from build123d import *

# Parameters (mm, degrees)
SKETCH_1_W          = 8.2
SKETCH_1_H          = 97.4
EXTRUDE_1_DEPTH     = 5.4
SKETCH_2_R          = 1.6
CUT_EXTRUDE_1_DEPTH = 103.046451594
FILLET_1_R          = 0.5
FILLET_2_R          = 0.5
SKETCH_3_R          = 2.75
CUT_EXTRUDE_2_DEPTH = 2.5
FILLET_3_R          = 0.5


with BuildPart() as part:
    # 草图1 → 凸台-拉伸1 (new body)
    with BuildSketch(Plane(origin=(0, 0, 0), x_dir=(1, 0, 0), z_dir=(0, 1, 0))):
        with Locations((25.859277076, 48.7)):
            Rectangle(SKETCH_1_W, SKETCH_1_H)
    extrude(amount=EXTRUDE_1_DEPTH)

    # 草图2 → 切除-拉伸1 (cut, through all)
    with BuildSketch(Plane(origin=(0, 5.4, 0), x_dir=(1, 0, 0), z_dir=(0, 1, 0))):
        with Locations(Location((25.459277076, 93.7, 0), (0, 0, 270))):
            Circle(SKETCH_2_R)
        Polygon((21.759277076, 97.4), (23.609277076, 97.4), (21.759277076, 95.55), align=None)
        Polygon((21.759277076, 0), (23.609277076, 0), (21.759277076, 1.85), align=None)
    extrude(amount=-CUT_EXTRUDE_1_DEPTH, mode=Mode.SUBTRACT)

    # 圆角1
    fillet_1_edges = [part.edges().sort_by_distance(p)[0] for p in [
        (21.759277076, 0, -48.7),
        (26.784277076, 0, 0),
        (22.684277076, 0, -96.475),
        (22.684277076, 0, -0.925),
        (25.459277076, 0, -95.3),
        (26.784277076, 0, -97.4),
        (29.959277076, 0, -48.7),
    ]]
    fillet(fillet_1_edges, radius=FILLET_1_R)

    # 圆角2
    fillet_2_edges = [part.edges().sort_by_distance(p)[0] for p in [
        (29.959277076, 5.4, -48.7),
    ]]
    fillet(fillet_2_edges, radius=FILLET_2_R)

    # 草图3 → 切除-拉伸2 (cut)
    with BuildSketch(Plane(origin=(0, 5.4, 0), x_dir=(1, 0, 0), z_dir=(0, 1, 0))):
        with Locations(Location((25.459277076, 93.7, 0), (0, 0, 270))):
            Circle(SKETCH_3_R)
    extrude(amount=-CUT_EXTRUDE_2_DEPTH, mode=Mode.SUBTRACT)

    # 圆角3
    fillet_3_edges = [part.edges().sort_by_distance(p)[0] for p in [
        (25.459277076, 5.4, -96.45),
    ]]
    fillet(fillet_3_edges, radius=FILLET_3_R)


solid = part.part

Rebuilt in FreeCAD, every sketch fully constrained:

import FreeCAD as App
import Part
import Sketcher

V = App.Vector
Q = App.Units.Quantity


def edges_at(feature, points):
    """Names of the edges that pass closest to the given points."""
    edges = feature.Shape.Edges
    near = lambda p: min(range(len(edges)), key=lambda i: edges[i].distToShape(Part.Vertex(*p))[0])
    return sorted({f"Edge{near(p) + 1}" for p in points})

doc = App.newDocument("Part")
params = doc.addObject("Spreadsheet::Sheet", "Params")
for row, (alias, value) in enumerate([
    ("sketch1_width", "8.2 mm"),
    ("sketch1_height", "97.4 mm"),
    ("pad1_length", "5.4 mm"),
    ("sketch2_diameter", "3.2 mm"),
    ("sketch2_width", "1.85 mm"),
    ("fillet_radius", "0.5 mm"),
    ("fillet2_radius", "0.5 mm"),
    ("sketch3_diameter", "5.5 mm"),
    ("pocket2_length", "2.5 mm"),
    ("fillet3_radius", "0.5 mm"),
], start=1):
    params.set(f"A{row}", alias)
    params.set(f"B{row}", "=" + value)
    params.setAlias(f"B{row}", alias)

body = doc.addObject("PartDesign::Body", "Body")

# Sketch on XZ plane
sketch1 = body.newObject("Sketcher::SketchObject", "Sketch")
sketch1.AttachmentSupport = (doc.getObject("XZ_Plane"), [""])
sketch1.MapMode = "FlatFace"
sketch1.addGeometry(Part.LineSegment(V(21.759277, -97.4, 0), V(21.759277, 0, 0)), False)
sketch1.addGeometry(Part.LineSegment(V(21.759277, 0, 0), V(29.959277, 0, 0)), False)
sketch1.addGeometry(Part.LineSegment(V(29.959277, 0, 0), V(29.959277, -97.4, 0)), False)
sketch1.addGeometry(Part.LineSegment(V(29.959277, -97.4, 0), V(21.759277, -97.4, 0)), False)
sketch1.addConstraint(Sketcher.Constraint("Coincident", 0, 2, 1, 1))
sketch1.addConstraint(Sketcher.Constraint("Coincident", 1, 2, 2, 1))
sketch1.addConstraint(Sketcher.Constraint("Coincident", 2, 2, 3, 1))
sketch1.addConstraint(Sketcher.Constraint("Coincident", 3, 2, 0, 1))
sketch1.addConstraint(Sketcher.Constraint("Vertical", 0))
sketch1.addConstraint(Sketcher.Constraint("Horizontal", 1))
sketch1.addConstraint(Sketcher.Constraint("Vertical", 2))
sketch1.addConstraint(Sketcher.Constraint("Horizontal", 3))
sketch1.addConstraint(Sketcher.Constraint("PointOnObject", 0, 2, -1))
sketch1.addConstraint(Sketcher.Constraint("DistanceX", 1, 1, 1, 2, Q("8.2 mm")))
sketch1.addConstraint(Sketcher.Constraint("DistanceY", 0, 1, 0, 2, Q("97.4 mm")))
sketch1.addConstraint(Sketcher.Constraint("DistanceX", -1, 1, 0, 2, Q("21.759277 mm")))
sketch1.setExpression("Constraints[9]", "Params.sketch1_width")
sketch1.setExpression("Constraints[10]", "Params.sketch1_height")
pad1 = body.newObject("PartDesign::Pad", "Pad")
pad1.Profile = sketch1
pad1.setExpression("Length", "Params.pad1_length")
pad1.Reversed = True

# Sketch on XZ plane
sketch2 = body.newObject("Sketcher::SketchObject", "Sketch001")
sketch2.AttachmentSupport = (doc.getObject("XZ_Plane"), [""])
sketch2.MapMode = "FlatFace"
sketch2.AttachmentOffset = App.Placement(V(0, 0, -5.4), App.Rotation())
sketch2.addGeometry(Part.Circle(V(25.459277, -93.7, 0), V(0, 0, 1), 1.6), False)
sketch2.addGeometry(Part.LineSegment(V(23.609277, -97.4, 0), V(21.759277, -97.4, 0)), False)
sketch2.addGeometry(Part.LineSegment(V(21.759277, -97.4, 0), V(21.759277, -95.55, 0)), False)
sketch2.addGeometry(Part.LineSegment(V(21.759277, -95.55, 0), V(23.609277, -97.4, 0)), False)
sketch2.addGeometry(Part.LineSegment(V(21.759277, 0, 0), V(23.609277, 0, 0)), False)
sketch2.addGeometry(Part.LineSegment(V(23.609277, 0, 0), V(21.759277, -1.85, 0)), False)
sketch2.addGeometry(Part.LineSegment(V(21.759277, -1.85, 0), V(21.759277, 0, 0)), False)
sketch2.addConstraint(Sketcher.Constraint("Coincident", 1, 2, 2, 1))
sketch2.addConstraint(Sketcher.Constraint("Coincident", 2, 2, 3, 1))
sketch2.addConstraint(Sketcher.Constraint("Coincident", 3, 2, 1, 1))
sketch2.addConstraint(Sketcher.Constraint("Coincident", 4, 2, 5, 1))
sketch2.addConstraint(Sketcher.Constraint("Coincident", 5, 2, 6, 1))
sketch2.addConstraint(Sketcher.Constraint("Coincident", 6, 2, 4, 1))
sketch2.addConstraint(Sketcher.Constraint("Horizontal", 1))
sketch2.addConstraint(Sketcher.Constraint("Vertical", 2))
sketch2.addConstraint(Sketcher.Constraint("Horizontal", 4))
sketch2.addConstraint(Sketcher.Constraint("Vertical", 6))
sketch2.addConstraint(Sketcher.Constraint("PointOnObject", 4, 2, -1))
sketch2.addConstraint(Sketcher.Constraint("Perpendicular", 3, 5))
sketch2.addConstraint(Sketcher.Constraint("Vertical", 3, 2, 4, 2))
sketch2.addConstraint(Sketcher.Constraint("Vertical", 2, 2, 5, 2))
sketch2.addConstraint(Sketcher.Constraint("Equal", 4, 2))
sketch2.addConstraint(Sketcher.Constraint("Diameter", 0, Q("3.2 mm")))
sketch2.addConstraint(Sketcher.Constraint("DistanceX", 1, 2, 1, 1, Q("1.85 mm")))
sketch2.addConstraint(Sketcher.Constraint("DistanceY", 0, 3, -1, 1, Q("93.7 mm")))
sketch2.addConstraint(Sketcher.Constraint("DistanceY", 1, 2, -1, 1, Q("97.4 mm")))
sketch2.addConstraint(Sketcher.Constraint("DistanceX", 1, 2, 0, 3, Q("3.7 mm")))
sketch2.addConstraint(Sketcher.Constraint("DistanceX", -1, 1, 0, 3, Q("25.459277 mm")))
sketch2.setExpression("Constraints[15]", "Params.sketch2_diameter")
sketch2.setExpression("Constraints[16]", "Params.sketch2_width")
pocket1 = body.newObject("PartDesign::Pocket", "Pocket")
pocket1.Profile = sketch2
pocket1.Type = "ThroughAll"
pocket1.Reversed = True
doc.recompute()

fillet = body.newObject("PartDesign::Fillet", "Fillet")
fillet.Base = (pocket1, edges_at(pocket1, [
    (21.759, 0, -48.7),
    (26.784, 0, 0),
    (22.684, 0, -96.475),
    (22.684, 0, -0.925),
    (25.459, 0, -95.3),
    (26.784, 0, -97.4),
    (29.959, 0, -48.7),
]))
fillet.setExpression("Radius", "Params.fillet_radius")
doc.recompute()

fillet2 = body.newObject("PartDesign::Fillet", "Fillet001")
fillet2.Base = (fillet, edges_at(fillet, [(29.959, 5.4, -48.7)]))
fillet2.setExpression("Radius", "Params.fillet2_radius")

# Sketch on XZ plane
sketch3 = body.newObject("Sketcher::SketchObject", "Sketch002")
sketch3.AttachmentSupport = (doc.getObject("XZ_Plane"), [""])
sketch3.MapMode = "FlatFace"
sketch3.AttachmentOffset = App.Placement(V(0, 0, -5.4), App.Rotation())
sketch3.addGeometry(Part.Circle(V(25.459277, -93.7, 0), V(0, 0, 1), 2.75), False)
sketch3.addConstraint(Sketcher.Constraint("Diameter", 0, Q("5.5 mm")))
sketch3.addConstraint(Sketcher.Constraint("DistanceY", 0, 3, -1, 1, Q("93.7 mm")))
sketch3.addConstraint(Sketcher.Constraint("DistanceX", -1, 1, 0, 3, Q("25.459277 mm")))
sketch3.setExpression("Constraints[0]", "Params.sketch3_diameter")
pocket2 = body.newObject("PartDesign::Pocket", "Pocket001")
pocket2.Profile = sketch3
pocket2.setExpression("Length", "Params.pocket2_length")
pocket2.Reversed = True
doc.recompute()

fillet3 = body.newObject("PartDesign::Fillet", "Fillet002")
fillet3.Base = (pocket2, edges_at(pocket2, [(25.459, 5.4, -96.45)]))
fillet3.setExpression("Radius", "Params.fillet3_radius")

doc.recompute()
